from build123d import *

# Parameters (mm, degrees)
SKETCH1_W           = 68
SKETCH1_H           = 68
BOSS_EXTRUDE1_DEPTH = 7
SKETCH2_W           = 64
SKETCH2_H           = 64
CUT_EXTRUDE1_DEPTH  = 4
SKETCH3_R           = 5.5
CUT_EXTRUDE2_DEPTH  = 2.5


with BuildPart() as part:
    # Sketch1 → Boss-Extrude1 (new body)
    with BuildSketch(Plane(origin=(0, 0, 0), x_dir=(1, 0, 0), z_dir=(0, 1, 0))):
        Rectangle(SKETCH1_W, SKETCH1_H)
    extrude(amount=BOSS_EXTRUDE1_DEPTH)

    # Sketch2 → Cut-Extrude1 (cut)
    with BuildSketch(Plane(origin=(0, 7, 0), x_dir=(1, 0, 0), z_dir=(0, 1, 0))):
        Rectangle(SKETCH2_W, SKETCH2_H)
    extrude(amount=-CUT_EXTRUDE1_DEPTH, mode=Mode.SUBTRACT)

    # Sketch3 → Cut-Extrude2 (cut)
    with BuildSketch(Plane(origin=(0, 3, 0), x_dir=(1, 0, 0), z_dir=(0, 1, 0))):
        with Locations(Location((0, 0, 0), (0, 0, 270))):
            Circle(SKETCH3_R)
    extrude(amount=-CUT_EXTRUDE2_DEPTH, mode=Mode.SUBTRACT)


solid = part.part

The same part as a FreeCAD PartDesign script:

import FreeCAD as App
import Part
import Sketcher
from FreeCAD import Vector


def add_polygon(sketch, points):
    """Adds a closed chain of lines whose ends are joined by coincident constraints."""
    first, n = sketch.GeometryCount, len(points)
    for a, b in zip(points, points[1:] + points[:1]):
        sketch.addGeometry(Part.LineSegment(App.Vector(*a, 0), App.Vector(*b, 0)), False)
    for i in range(n):
        sketch.addConstraint(Sketcher.Constraint("Coincident", first + i, 2, first + (i + 1) % n, 1))

doc = App.newDocument("Part")
body = doc.addObject("PartDesign::Body", "Body")

# Sketch on XZ plane
sketch1 = body.newObject("Sketcher::SketchObject", "Sketch")
sketch1.AttachmentSupport = (doc.getObject("XZ_Plane"), [""])
sketch1.MapMode = "FlatFace"
add_polygon(sketch1, [(-34, -34), (-34, 34), (34, 34), (34, -34)])  # lines 0-3
sketch1.addConstraint([
    Sketcher.Constraint("Vertical", 0),
    Sketcher.Constraint("Horizontal", 1),
    Sketcher.Constraint("Vertical", 2),
    Sketcher.Constraint("Horizontal", 3),
    Sketcher.Constraint("Symmetric", 0, 2, 2, 2, -1, 1),
    Sketcher.Constraint("Equal", 3, 0),
    Sketcher.Constraint("DistanceX", 1, 1, 1, 2, 68.0),
])
pad1 = body.newObject("PartDesign::Pad", "Pad")
pad1.Profile = sketch1
pad1.Length = 7
pad1.Reversed = True

# Sketch on XZ plane
sketch2 = body.newObject("Sketcher::SketchObject", "Sketch001")
sketch2.AttachmentSupport = (doc.getObject("XZ_Plane"), [""])
sketch2.MapMode = "FlatFace"
sketch2.AttachmentOffset = App.Placement(Vector(0, 0, -7), App.Rotation())
add_polygon(sketch2, [(-32, -32), (-32, 32), (32, 32), (32, -32)])  # lines 0-3
sketch2.addConstraint([
    Sketcher.Constraint("Vertical", 0),
    Sketcher.Constraint("Horizontal", 1),
    Sketcher.Constraint("Vertical", 2),
    Sketcher.Constraint("Horizontal", 3),
    Sketcher.Constraint("Symmetric", 0, 2, 2, 2, -1, 1),
    Sketcher.Constraint("Equal", 3, 0),
    Sketcher.Constraint("DistanceX", 1, 1, 1, 2, 64.0),
])
pocket1 = body.newObject("PartDesign::Pocket", "Pocket")
pocket1.Profile = sketch2
pocket1.Length = 4
pocket1.Reversed = True

# Sketch on XZ plane
sketch3 = body.newObject("Sketcher::SketchObject", "Sketch002")
sketch3.AttachmentSupport = (doc.getObject("XZ_Plane"), [""])
sketch3.MapMode = "FlatFace"
sketch3.AttachmentOffset = App.Placement(Vector(0, 0, -3), App.Rotation())
sketch3.addGeometry(Part.Circle(Vector(0, 0, 0), Vector(0, 0, 1), 6), False)
sketch3.addConstraint([
    Sketcher.Constraint("Coincident", 0, 3, -1, 1),
    Sketcher.Constraint("Diameter", 0, 11.0),
])
pocket2 = body.newObject("PartDesign::Pocket", "Pocket001")
pocket2.Profile = sketch3
pocket2.Length = 2.5
pocket2.Reversed = True

doc.recompute()
